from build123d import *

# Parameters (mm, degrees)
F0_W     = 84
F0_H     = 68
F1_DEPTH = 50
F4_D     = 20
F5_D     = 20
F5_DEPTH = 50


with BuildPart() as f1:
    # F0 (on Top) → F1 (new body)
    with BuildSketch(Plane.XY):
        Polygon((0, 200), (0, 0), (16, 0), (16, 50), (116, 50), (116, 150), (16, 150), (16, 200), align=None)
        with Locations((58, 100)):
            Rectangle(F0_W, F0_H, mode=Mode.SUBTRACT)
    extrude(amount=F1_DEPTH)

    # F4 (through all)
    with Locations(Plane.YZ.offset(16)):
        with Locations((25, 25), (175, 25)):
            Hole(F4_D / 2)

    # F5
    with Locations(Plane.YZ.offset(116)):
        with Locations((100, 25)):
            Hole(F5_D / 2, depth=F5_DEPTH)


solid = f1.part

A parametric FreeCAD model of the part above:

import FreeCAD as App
import Part
import Sketcher
from FreeCAD import Vector

doc = App.newDocument("Part")
body = doc.addObject("PartDesign::Body", "Body")

# Sketch on XY plane
sketch1 = doc.addObject("Sketcher::SketchObject", "Sketch")
body.addObject(sketch1)
sketch1.AttachmentSupport = (doc.XY_Plane, [""])
sketch1.MapMode = "FlatFace"
sketch1.addGeometry(Part.LineSegment(Vector(0, 200, 0), Vector(0, 0, 0)), False)
sketch1.addGeometry(Part.LineSegment(Vector(0, 0, 0), Vector(16, 0, 0)), False)
sketch1.addGeometry(Part.LineSegment(Vector(16, 0, 0), Vector(16, 50, 0)), False)
sketch1.addGeometry(Part.LineSegment(Vector(16, 50, 0), Vector(116, 50, 0)), False)
sketch1.addGeometry(Part.LineSegment(Vector(116, 50, 0), Vector(116, 150, 0)), False)
sketch1.addGeometry(Part.LineSegment(Vector(116, 150, 0), Vector(16, 150, 0)), False)
sketch1.addGeometry(Part.LineSegment(Vector(16, 150, 0), Vector(16, 200, 0)), False)
sketch1.addGeometry(Part.LineSegment(Vector(16, 200, 0), Vector(0, 200, 0)), False)
sketch1.addGeometry(Part.LineSegment(Vector(100, 66, 0), Vector(16, 66, 0)), False)
sketch1.addGeometry(Part.LineSegment(Vector(16, 66, 0), Vector(16, 134, 0)), False)
sketch1.addGeometry(Part.LineSegment(Vector(16, 134, 0), Vector(100, 134, 0)), False)
sketch1.addGeometry(Part.LineSegment(Vector(100, 134, 0), Vector(100, 66, 0)), False)
sketch1.addConstraint(Sketcher.Constraint("Coincident", 0, 2, 1, 1))
sketch1.addConstraint(Sketcher.Constraint("Coincident", 1, 2, 2, 1))
sketch1.addConstraint(Sketcher.Constraint("Coincident", 2, 2, 3, 1))
sketch1.addConstraint(Sketcher.Constraint("Coincident", 3, 2, 4, 1))
sketch1.addConstraint(Sketcher.Constraint("Coincident", 4, 2, 5, 1))
sketch1.addConstraint(Sketcher.Constraint("Coincident", 5, 2, 6, 1))
sketch1.addConstraint(Sketcher.Constraint("Coincident", 6, 2, 7, 1))
sketch1.addConstraint(Sketcher.Constraint("Coincident", 7, 2, 0, 1))
sketch1.addConstraint(Sketcher.Constraint("Coincident", 8, 2, 9, 1))
sketch1.addConstraint(Sketcher.Constraint("Coincident", 9, 2, 10, 1))
sketch1.addConstraint(Sketcher.Constraint("Coincident", 10, 2, 11, 1))
sketch1.addConstraint(Sketcher.Constraint("Coincident", 11, 2, 8, 1))
sketch1.addConstraint(Sketcher.Constraint("Vertical", 0))
sketch1.addConstraint(Sketcher.Constraint("Horizontal", 1))
sketch1.addConstraint(Sketcher.Constraint("Vertical", 2))
sketch1.addConstraint(Sketcher.Constraint("Horizontal", 3))
sketch1.addConstraint(Sketcher.Constraint("Vertical", 4))
sketch1.addConstraint(Sketcher.Constraint("Horizontal", 5))
sketch1.addConstraint(Sketcher.Constraint("Vertical", 6))
sketch1.addConstraint(Sketcher.Constraint("Horizontal", 7))
sketch1.addConstraint(Sketcher.Constraint("Horizontal", 8))
sketch1.addConstraint(Sketcher.Constraint("Vertical", 9))
sketch1.addConstraint(Sketcher.Constraint("Horizontal", 10))
sketch1.addConstraint(Sketcher.Constraint("Vertical", 11))
sketch1.addConstraint(Sketcher.Constraint("Coincident", 0, 2, -1, 1))
sketch1.addConstraint(Sketcher.Constraint("Vertical", 2, 2, 5, 2))
sketch1.addConstraint(Sketcher.Constraint("Vertical", 6, 2, 8, 2))
sketch1.addConstraint(Sketcher.Constraint("Equal", 5, 4))
sketch1.addConstraint(Sketcher.Constraint("Equal", 2, 6))
sketch1.addConstraint(Sketcher.Constraint("DistanceX", 1, 1, 1, 2, 16.0))
sketch1.addConstraint(Sketcher.Constraint("DistanceX", 3, 1, 3, 2, 100.0))
sketch1.addConstraint(Sketcher.Constraint("DistanceX", 8, 2, 8, 1, 84.0))
sketch1.addConstraint(Sketcher.Constraint("DistanceY", 0, 2, 0, 1, 200.0))
sketch1.addConstraint(Sketcher.Constraint("DistanceY", 9, 1, 9, 2, 68.0))
sketch1.addConstraint(Sketcher.Constraint("DistanceY", -1, 1, 8, 2, 66.0))
pad1 = doc.addObject("PartDesign::Pad", "Pad")
body.addObject(pad1)
pad1.Profile = sketch1
pad1.Length = 50

# Sketch on YZ plane
sketch2 = doc.addObject("Sketcher::SketchObject", "Sketch001")
body.addObject(sketch2)
sketch2.AttachmentSupport = (doc.YZ_Plane, [""])
sketch2.MapMode = "FlatFace"
sketch2.AttachmentOffset = App.Placement(Vector(0, 0, 16), App.Rotation())
sketch2.addGeometry(Part.Circle(Vector(25, 25, 0), Vector(0, 0, 1), 10), False)
sketch2.addGeometry(Part.Circle(Vector(175, 25, 0), Vector(0, 0, 1), 10), False)
sketch2.addConstraint(Sketcher.Constraint("Equal", 0, 1))
sketch2.addConstraint(Sketcher.Constraint("Horizontal", 0, 3, 1, 3))
sketch2.addConstraint(Sketcher.Constraint("Diameter", 0, 20.0))
sketch2.addConstraint(Sketcher.Constraint("DistanceX", -1, 1, 0, 3, 25.0))
sketch2.addConstraint(Sketcher.Constraint("DistanceY", -1, 1, 0, 3, 25.0))
sketch2.addConstraint(Sketcher.Constraint("DistanceX", -1, 1, 1, 3, 175.0))
doc.recompute()
hole = doc.addObject("PartDesign::Hole", "Hole")
body.addObject(hole)
hole.Profile = sketch2
hole.ThreadType = "None"
hole.Diameter = 20
hole.DepthType = "ThroughAll"

# Sketch on YZ plane
sketch3 = doc.addObject("Sketcher::SketchObject", "Sketch002")
body.addObject(sketch3)
sketch3.AttachmentSupport = (doc.YZ_Plane, [""])
sketch3.MapMode = "FlatFace"
sketch3.AttachmentOffset = App.Placement(Vector(0, 0, 116), App.Rotation())
sketch3.addGeometry(Part.Circle(Vector(100, 25, 0), Vector(0, 0, 1), 10), False)
sketch3.addConstraint(Sketcher.Constraint("Diameter", 0, 20.0))
sketch3.addConstraint(Sketcher.Constraint("DistanceX", -1, 1, 0, 3, 100.0))
sketch3.addConstraint(Sketcher.Constraint("DistanceY", -1, 1, 0, 3, 25.0))
doc.recompute()
hole2 = doc.addObject("PartDesign::Hole", "Hole001")
body.addObject(hole2)
hole2.Profile = sketch3
hole2.ThreadType = "None"
hole2.Diameter = 20
hole2.DepthType = "Dimension"
hole2.Depth = 50
hole2.DrillPoint = "Flat"

doc.recompute()
